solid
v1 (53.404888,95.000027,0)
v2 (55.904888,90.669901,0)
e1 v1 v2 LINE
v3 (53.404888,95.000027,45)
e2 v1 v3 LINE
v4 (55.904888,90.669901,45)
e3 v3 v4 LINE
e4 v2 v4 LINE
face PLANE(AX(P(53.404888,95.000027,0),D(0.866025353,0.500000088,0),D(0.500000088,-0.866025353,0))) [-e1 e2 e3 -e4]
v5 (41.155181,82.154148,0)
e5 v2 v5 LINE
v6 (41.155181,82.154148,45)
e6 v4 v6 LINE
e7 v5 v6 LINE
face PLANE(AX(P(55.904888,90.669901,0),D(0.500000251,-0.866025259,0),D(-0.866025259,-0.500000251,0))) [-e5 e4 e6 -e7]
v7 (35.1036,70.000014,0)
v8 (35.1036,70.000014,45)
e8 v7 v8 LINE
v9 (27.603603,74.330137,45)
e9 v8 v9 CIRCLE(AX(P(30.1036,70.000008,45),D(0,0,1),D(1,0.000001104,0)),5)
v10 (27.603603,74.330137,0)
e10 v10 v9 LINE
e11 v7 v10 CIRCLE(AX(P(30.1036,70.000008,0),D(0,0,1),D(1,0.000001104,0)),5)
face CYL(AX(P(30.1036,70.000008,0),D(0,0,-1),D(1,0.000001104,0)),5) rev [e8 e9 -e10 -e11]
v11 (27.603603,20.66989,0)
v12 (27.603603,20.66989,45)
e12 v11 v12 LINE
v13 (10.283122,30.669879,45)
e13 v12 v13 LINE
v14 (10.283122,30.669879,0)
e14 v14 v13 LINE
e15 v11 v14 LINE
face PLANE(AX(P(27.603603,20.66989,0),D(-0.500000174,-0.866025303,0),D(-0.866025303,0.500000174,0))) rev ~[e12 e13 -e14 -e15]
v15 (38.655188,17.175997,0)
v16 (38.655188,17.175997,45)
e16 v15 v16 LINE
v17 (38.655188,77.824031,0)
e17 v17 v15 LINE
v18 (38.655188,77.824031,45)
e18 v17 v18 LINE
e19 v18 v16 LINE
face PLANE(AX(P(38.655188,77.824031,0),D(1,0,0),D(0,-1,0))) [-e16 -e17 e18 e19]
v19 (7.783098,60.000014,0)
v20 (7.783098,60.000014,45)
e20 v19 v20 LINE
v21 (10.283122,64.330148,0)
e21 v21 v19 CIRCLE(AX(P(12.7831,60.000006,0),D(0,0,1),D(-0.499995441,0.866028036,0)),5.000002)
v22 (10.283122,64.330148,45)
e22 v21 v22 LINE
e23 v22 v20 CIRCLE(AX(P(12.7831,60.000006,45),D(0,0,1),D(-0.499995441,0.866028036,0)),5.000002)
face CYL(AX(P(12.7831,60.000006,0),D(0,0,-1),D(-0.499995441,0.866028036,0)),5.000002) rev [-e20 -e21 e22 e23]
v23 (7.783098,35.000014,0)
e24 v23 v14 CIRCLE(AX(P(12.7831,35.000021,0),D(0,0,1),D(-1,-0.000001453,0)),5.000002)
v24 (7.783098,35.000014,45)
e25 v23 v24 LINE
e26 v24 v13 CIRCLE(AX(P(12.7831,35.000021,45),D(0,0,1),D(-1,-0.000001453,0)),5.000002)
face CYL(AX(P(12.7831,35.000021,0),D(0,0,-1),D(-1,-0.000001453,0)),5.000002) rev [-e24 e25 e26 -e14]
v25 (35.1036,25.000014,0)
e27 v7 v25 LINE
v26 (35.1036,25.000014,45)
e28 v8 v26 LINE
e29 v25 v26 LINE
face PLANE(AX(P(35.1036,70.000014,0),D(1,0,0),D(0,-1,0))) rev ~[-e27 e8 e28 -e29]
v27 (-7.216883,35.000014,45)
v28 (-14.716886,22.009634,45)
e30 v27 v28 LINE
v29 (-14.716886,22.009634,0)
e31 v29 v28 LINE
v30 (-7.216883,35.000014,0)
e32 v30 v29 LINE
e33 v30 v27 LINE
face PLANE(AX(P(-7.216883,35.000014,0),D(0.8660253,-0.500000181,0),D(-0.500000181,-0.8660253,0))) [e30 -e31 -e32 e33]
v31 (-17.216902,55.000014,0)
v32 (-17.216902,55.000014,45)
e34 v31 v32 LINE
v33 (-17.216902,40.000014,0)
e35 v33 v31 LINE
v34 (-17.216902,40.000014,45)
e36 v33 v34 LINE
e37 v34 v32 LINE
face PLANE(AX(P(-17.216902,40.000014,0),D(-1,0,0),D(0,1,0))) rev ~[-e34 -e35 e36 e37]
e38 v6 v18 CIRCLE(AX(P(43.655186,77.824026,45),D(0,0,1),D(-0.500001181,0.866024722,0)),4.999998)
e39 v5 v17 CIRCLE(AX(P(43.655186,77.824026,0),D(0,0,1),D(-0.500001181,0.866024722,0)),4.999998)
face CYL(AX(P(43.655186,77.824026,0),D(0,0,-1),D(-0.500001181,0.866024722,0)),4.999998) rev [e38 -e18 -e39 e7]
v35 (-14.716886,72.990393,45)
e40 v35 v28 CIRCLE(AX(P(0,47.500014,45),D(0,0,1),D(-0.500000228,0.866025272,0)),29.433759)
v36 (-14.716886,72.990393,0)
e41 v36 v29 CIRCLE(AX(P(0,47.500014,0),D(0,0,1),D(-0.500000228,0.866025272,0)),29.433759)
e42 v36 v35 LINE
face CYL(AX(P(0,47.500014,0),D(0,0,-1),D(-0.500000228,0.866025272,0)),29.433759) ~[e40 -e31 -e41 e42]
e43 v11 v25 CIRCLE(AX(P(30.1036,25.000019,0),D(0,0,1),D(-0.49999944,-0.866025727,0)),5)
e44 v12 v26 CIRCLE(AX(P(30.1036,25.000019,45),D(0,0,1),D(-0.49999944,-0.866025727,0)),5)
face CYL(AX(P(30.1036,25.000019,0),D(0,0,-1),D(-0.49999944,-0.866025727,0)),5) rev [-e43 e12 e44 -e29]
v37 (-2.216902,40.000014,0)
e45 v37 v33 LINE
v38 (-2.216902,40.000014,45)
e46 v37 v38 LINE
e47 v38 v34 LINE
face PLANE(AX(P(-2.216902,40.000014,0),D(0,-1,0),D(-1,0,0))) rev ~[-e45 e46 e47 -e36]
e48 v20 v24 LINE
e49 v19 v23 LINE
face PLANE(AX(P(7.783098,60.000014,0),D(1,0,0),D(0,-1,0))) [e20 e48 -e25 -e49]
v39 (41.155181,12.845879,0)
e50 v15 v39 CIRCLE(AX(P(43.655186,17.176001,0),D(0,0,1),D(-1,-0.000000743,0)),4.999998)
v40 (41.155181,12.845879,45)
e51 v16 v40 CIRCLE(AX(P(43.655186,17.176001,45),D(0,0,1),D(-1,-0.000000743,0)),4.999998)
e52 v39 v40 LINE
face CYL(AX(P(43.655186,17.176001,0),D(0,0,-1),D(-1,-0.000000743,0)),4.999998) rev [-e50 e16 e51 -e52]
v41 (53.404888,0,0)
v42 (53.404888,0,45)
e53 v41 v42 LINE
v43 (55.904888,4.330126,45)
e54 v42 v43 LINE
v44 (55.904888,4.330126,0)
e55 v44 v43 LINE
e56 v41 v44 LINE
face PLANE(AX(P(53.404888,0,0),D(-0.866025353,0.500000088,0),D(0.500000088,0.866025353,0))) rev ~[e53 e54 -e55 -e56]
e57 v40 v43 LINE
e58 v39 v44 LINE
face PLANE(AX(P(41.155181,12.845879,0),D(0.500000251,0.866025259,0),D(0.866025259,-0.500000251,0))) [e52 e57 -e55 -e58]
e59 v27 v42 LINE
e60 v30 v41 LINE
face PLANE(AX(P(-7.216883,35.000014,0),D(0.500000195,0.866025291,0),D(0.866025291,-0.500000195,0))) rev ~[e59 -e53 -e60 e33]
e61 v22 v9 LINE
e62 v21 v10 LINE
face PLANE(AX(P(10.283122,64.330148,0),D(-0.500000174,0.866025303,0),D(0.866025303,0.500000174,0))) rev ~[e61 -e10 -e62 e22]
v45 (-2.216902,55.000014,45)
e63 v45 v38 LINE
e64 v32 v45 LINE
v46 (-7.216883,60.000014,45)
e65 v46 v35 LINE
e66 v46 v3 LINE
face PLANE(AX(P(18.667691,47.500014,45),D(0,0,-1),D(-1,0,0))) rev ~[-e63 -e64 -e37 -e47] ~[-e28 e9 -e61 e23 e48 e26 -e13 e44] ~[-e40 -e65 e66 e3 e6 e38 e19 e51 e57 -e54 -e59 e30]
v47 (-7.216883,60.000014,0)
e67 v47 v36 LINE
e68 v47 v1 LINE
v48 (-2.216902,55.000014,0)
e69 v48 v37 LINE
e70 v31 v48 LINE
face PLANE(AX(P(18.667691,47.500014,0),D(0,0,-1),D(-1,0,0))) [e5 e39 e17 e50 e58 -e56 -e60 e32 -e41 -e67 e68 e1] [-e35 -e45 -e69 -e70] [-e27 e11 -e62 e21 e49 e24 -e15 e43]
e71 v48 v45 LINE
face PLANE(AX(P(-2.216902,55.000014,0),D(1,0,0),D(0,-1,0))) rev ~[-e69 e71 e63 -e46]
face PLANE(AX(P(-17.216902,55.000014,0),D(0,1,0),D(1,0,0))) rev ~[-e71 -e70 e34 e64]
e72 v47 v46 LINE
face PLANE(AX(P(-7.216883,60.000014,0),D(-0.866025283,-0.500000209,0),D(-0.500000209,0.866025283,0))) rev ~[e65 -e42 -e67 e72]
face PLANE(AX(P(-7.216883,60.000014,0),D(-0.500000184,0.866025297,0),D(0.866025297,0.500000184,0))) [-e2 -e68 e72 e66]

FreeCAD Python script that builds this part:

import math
import FreeCAD as App
import Part
import Sketcher
from FreeCAD import Vector
Q = App.Units.Quantity

doc = App.newDocument("Part")
body = doc.addObject("PartDesign::Body", "Body")

sketch1 = doc.addObject("Sketcher::SketchObject", "Sketch")
body.addObject(sketch1)
sketch1.AttachmentSupport = (doc.XY_Plane, [""])
sketch1.MapMode = "FlatFace"
sketch1.addGeometry([
    Part.LineSegment(Vector(53.4, 95, 0), Vector(-7.2, 60, 0)),
    Part.LineSegment(Vector(-7.2, 60, 0), Vector(-14.7, 73, 0)),
    Part.ArcOfCircle(Part.Circle(Vector(0, 47.5, 0), Vector(0, 0, 1), 29.4), math.radians(120), math.radians(240)),
    Part.LineSegment(Vector(-14.7, 22, 0), Vector(-7.2, 35, 0)),
    Part.LineSegment(Vector(-7.2, 35, 0), Vector(53.4, 0, 0)),
    Part.LineSegment(Vector(53.4, 0, 0), Vector(55.9, 4.3, 0)),
    Part.LineSegment(Vector(55.9, 4.3, 0), Vector(41.2, 12.8, 0)),
    Part.ArcOfCircle(Part.Circle(Vector(43.7, 17.2, 0), Vector(0, 0, 1), 5), math.radians(-180), math.radians(-120)),
    Part.LineSegment(Vector(38.7, 17.2, 0), Vector(38.7, 77.8, 0)),
    Part.ArcOfCircle(Part.Circle(Vector(43.7, 77.8, 0), Vector(0, 0, 1), 5), math.radians(120), math.radians(180)),
    Part.LineSegment(Vector(41.2, 82.2, 0), Vector(55.9, 90.7, 0)),
    Part.LineSegment(Vector(55.9, 90.7, 0), Vector(53.4, 95, 0)),
    Part.LineSegment(Vector(27.6, 20.7, 0), Vector(10.3, 30.7, 0)),
    Part.ArcOfCircle(Part.Circle(Vector(12.8, 35, 0), Vector(0, 0, 1), 5), math.radians(-180), math.radians(-120)),
    Part.LineSegment(Vector(7.8, 35, 0), Vector(7.8, 60, 0)),
    Part.ArcOfCircle(Part.Circle(Vector(12.8, 60, 0), Vector(0, 0, 1), 5), math.radians(120), math.radians(180)),
    Part.LineSegment(Vector(10.3, 64.3, 0), Vector(27.6, 74.3, 0)),
    Part.ArcOfCircle(Part.Circle(Vector(30.1, 70, 0), Vector(0, 0, 1), 5), math.radians(0), math.radians(120)),
    Part.LineSegment(Vector(35.1, 70, 0), Vector(35.1, 25, 0)),
    Part.ArcOfCircle(Part.Circle(Vector(30.1, 25, 0), Vector(0, 0, 1), 5), math.radians(-120), math.radians(0)),
    Part.LineSegment(Vector(-17.2, 55, 0), Vector(-2.2, 55, 0)),
    Part.LineSegment(Vector(-2.2, 55, 0), Vector(-2.2, 40, 0)),
    Part.LineSegment(Vector(-2.2, 40, 0), Vector(-17.2, 40, 0)),
    Part.LineSegment(Vector(-17.2, 40, 0), Vector(-17.2, 55, 0)),
], False)
sketch1.addConstraint([
    Sketcher.Constraint("Coincident", 0, 2, 1, 1),
    Sketcher.Constraint("Coincident", 1, 2, 2, 1),
    Sketcher.Constraint("Coincident", 2, 2, 3, 1),
    Sketcher.Constraint("Coincident", 3, 2, 4, 1),
    Sketcher.Constraint("Coincident", 4, 2, 5, 1),
    Sketcher.Constraint("Coincident", 5, 2, 6, 1),
    Sketcher.Constraint("Tangent", 6, 2, 7, 2),
    Sketcher.Constraint("Tangent", 7, 1, 8, 1),
    Sketcher.Constraint("Tangent", 8, 2, 9, 2),
    Sketcher.Constraint("Tangent", 9, 1, 10, 1),
    Sketcher.Constraint("Coincident", 10, 2, 11, 1),
    Sketcher.Constraint("Coincident", 11, 2, 0, 1),
    Sketcher.Constraint("Coincident", 12, 2, 13, 2),
    Sketcher.Constraint("Tangent", 13, 1, 14, 1),
    Sketcher.Constraint("Tangent", 14, 2, 15, 2),
    Sketcher.Constraint("Coincident", 15, 1, 16, 1),
    Sketcher.Constraint("Tangent", 16, 2, 17, 2),
    Sketcher.Constraint("Tangent", 17, 1, 18, 1),
    Sketcher.Constraint("Tangent", 18, 2, 19, 2),
    Sketcher.Constraint("Tangent", 19, 1, 12, 1),
    Sketcher.Constraint("Coincident", 20, 2, 21, 1),
    Sketcher.Constraint("Coincident", 21, 2, 22, 1),
    Sketcher.Constraint("Coincident", 22, 2, 23, 1),
    Sketcher.Constraint("Coincident", 23, 2, 20, 1),
    Sketcher.Constraint("Vertical", 8),
    Sketcher.Constraint("Vertical", 14),
    Sketcher.Constraint("Vertical", 18),
    Sketcher.Constraint("Horizontal", 20),
    Sketcher.Constraint("Vertical", 21),
    Sketcher.Constraint("Horizontal", 22),
    Sketcher.Constraint("Vertical", 23),
    Sketcher.Constraint("Equal", 7, 9),
    Sketcher.Constraint("Equal", 13, 15),
    Sketcher.Constraint("Equal", 17, 19),
    Sketcher.Constraint("PointOnObject", 2, 3, -2),
    Sketcher.Constraint("PointOnObject", 4, 2, -1),
    Sketcher.Constraint("Perpendicular", 0, 1),
    Sketcher.Constraint("Perpendicular", 3, 4),
    Sketcher.Constraint("Perpendicular", 4, 5),
    Sketcher.Constraint("Perpendicular", 5, 6),
    Sketcher.Constraint("Perpendicular", 1, 10),
    Sketcher.Constraint("Perpendicular", 10, 11),
    Sketcher.Constraint("Parallel", 6, 12),
    Sketcher.Constraint("Perpendicular", 11, 16),
    Sketcher.Constraint("Horizontal", 3, 2, 13, 1),
    Sketcher.Constraint("Horizontal", 0, 2, 14, 2),
    Sketcher.Constraint("Vertical", 1, 2, 2, 2),
    Sketcher.Constraint("Vertical", 0, 2, 3, 2),
    Sketcher.Constraint("Vertical", 6, 2, 9, 1),
    Sketcher.Constraint("Vertical", 5, 2, 10, 2),
    Sketcher.Constraint("Vertical", 4, 2, 11, 2),
    Sketcher.Constraint("Vertical", 12, 2, 15, 1),
    Sketcher.Constraint("Equal", 22, 21),
    Sketcher.Constraint("Radius", 17, 5.0),
    Sketcher.Constraint("DistanceX", 20, 1, 20, 2, 15.0),
    Sketcher.Constraint("DistanceY", 14, 1, 14, 2, 25.0),
    Sketcher.Constraint("DistanceY", 18, 2, 18, 1, 45.0),
    Sketcher.Constraint("Angle", 0, Q("-149.999988 deg")),
    Sketcher.Constraint("Distance", 0, 70.0),
    Sketcher.Constraint("Distance", 1, 15.0),
    Sketcher.Constraint("Distance", 5, 4.999999),
    Sketcher.Constraint("DistanceY", 20, 2, 0, 2, 5.0),
    Sketcher.Constraint("DistanceX", 20, 2, 14, 2, 10.0),
    Sketcher.Constraint("Radius", 2, 29.433759),
    Sketcher.Constraint("DistanceY", -1, 1, 7, 3, 17.176001),
    Sketcher.Constraint("Radius", 7, 4.999998),
    Sketcher.Constraint("Radius", 13, 5.000002),
    Sketcher.Constraint("DistanceX", -1, 1, 13, 3, 12.7831),
    Sketcher.Constraint("Distance", 12, 19.999971),
])
pad1 = doc.addObject("PartDesign::Pad", "Pad")
body.addObject(pad1)
pad1.Profile = sketch1
pad1.Length = 45

doc.recompute()
